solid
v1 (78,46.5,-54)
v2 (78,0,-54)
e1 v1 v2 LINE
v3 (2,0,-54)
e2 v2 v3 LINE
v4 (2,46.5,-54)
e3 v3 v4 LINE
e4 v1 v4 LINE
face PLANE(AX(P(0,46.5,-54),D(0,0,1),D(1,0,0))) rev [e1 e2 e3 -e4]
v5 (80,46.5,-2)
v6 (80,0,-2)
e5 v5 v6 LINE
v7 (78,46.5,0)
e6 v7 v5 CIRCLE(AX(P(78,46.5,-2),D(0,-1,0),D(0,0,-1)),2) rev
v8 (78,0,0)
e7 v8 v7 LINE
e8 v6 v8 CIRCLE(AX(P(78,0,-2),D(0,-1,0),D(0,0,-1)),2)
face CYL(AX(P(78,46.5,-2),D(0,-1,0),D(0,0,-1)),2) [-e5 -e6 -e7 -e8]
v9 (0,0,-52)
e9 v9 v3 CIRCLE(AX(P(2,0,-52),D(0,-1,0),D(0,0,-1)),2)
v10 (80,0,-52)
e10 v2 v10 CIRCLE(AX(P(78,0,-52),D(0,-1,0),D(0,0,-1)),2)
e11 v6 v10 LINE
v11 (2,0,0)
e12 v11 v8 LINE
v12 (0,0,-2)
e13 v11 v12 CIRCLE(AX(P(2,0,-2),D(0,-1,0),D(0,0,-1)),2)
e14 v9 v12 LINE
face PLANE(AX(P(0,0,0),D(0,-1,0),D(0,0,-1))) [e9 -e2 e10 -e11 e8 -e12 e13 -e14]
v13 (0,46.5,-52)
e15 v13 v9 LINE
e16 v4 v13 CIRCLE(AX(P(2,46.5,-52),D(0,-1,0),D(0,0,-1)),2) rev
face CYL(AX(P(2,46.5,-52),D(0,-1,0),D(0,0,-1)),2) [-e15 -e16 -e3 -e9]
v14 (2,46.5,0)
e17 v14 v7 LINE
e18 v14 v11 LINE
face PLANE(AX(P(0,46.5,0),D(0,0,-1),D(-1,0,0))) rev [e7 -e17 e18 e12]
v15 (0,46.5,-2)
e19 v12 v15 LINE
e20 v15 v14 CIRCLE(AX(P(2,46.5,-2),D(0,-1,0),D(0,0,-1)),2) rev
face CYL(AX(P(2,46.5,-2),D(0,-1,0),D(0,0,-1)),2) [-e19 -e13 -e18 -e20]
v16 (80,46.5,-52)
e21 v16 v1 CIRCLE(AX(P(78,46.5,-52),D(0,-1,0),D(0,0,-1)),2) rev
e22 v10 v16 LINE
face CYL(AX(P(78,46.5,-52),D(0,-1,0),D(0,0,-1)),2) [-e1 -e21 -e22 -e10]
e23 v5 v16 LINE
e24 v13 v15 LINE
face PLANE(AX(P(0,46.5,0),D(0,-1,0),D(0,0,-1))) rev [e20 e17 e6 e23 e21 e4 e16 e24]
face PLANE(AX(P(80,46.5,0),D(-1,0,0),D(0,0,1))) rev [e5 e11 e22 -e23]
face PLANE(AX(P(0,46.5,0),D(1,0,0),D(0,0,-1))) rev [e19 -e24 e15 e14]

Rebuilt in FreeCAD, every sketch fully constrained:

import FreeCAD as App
import Part
import Sketcher
from FreeCAD import Vector
Q = App.Units.Quantity


def edges_at(feature, points):
    """Names of the edges that pass closest to the given points."""
    edges = feature.Shape.Edges
    near = lambda p: min(range(len(edges)), key=lambda i: edges[i].distToShape(Part.Vertex(*p))[0])
    return sorted({f"Edge{near(p) + 1}" for p in points})


def add_polygon(sketch, points):
    """Adds a closed chain of lines whose ends are joined by coincident constraints."""
    first, n = sketch.GeometryCount, len(points)
    for a, b in zip(points, points[1:] + points[:1]):
        sketch.addGeometry(Part.LineSegment(App.Vector(*a, 0), App.Vector(*b, 0)), False)
    for i in range(n):
        sketch.addConstraint(Sketcher.Constraint("Coincident", first + i, 2, first + (i + 1) % n, 1))

doc = App.newDocument("Part")
body = doc.addObject("PartDesign::Body", "Body")

# Sketch on XZ plane
sketch1 = body.newObject("Sketcher::SketchObject", "Sketch")
sketch1.AttachmentSupport = (doc.getObject("XZ_Plane"), [""])
sketch1.MapMode = "FlatFace"
add_polygon(sketch1, [(0, -54), (0, 0), (80, 0), (80, -54)])  # lines 0-3
sketch1.addConstraint([
    Sketcher.Constraint("Vertical", 0),
    Sketcher.Constraint("Horizontal", 1),
    Sketcher.Constraint("Vertical", 2),
    Sketcher.Constraint("Horizontal", 3),
    Sketcher.Constraint("Coincident", 0, 2, -1, 1),
    Sketcher.Constraint("DistanceX", 1, 1, 1, 2, Q("80 mm")),
    Sketcher.Constraint("DistanceY", 0, 1, 0, 2, Q("54 mm")),
])
pad1 = body.newObject("PartDesign::Pad", "Pad")
pad1.Profile = sketch1
pad1.Length = 46.5
pad1.Reversed = True
doc.recompute()

fillet = body.newObject("PartDesign::Fillet", "Fillet")
fillet.Base = (pad1, edges_at(pad1, [
    (0, 23.25, -54),
    (80, 23.25, -54),
    (80, 23.25, 0),
    (0, 23.25, 0),
]))
fillet.Radius = 2

doc.recompute()
